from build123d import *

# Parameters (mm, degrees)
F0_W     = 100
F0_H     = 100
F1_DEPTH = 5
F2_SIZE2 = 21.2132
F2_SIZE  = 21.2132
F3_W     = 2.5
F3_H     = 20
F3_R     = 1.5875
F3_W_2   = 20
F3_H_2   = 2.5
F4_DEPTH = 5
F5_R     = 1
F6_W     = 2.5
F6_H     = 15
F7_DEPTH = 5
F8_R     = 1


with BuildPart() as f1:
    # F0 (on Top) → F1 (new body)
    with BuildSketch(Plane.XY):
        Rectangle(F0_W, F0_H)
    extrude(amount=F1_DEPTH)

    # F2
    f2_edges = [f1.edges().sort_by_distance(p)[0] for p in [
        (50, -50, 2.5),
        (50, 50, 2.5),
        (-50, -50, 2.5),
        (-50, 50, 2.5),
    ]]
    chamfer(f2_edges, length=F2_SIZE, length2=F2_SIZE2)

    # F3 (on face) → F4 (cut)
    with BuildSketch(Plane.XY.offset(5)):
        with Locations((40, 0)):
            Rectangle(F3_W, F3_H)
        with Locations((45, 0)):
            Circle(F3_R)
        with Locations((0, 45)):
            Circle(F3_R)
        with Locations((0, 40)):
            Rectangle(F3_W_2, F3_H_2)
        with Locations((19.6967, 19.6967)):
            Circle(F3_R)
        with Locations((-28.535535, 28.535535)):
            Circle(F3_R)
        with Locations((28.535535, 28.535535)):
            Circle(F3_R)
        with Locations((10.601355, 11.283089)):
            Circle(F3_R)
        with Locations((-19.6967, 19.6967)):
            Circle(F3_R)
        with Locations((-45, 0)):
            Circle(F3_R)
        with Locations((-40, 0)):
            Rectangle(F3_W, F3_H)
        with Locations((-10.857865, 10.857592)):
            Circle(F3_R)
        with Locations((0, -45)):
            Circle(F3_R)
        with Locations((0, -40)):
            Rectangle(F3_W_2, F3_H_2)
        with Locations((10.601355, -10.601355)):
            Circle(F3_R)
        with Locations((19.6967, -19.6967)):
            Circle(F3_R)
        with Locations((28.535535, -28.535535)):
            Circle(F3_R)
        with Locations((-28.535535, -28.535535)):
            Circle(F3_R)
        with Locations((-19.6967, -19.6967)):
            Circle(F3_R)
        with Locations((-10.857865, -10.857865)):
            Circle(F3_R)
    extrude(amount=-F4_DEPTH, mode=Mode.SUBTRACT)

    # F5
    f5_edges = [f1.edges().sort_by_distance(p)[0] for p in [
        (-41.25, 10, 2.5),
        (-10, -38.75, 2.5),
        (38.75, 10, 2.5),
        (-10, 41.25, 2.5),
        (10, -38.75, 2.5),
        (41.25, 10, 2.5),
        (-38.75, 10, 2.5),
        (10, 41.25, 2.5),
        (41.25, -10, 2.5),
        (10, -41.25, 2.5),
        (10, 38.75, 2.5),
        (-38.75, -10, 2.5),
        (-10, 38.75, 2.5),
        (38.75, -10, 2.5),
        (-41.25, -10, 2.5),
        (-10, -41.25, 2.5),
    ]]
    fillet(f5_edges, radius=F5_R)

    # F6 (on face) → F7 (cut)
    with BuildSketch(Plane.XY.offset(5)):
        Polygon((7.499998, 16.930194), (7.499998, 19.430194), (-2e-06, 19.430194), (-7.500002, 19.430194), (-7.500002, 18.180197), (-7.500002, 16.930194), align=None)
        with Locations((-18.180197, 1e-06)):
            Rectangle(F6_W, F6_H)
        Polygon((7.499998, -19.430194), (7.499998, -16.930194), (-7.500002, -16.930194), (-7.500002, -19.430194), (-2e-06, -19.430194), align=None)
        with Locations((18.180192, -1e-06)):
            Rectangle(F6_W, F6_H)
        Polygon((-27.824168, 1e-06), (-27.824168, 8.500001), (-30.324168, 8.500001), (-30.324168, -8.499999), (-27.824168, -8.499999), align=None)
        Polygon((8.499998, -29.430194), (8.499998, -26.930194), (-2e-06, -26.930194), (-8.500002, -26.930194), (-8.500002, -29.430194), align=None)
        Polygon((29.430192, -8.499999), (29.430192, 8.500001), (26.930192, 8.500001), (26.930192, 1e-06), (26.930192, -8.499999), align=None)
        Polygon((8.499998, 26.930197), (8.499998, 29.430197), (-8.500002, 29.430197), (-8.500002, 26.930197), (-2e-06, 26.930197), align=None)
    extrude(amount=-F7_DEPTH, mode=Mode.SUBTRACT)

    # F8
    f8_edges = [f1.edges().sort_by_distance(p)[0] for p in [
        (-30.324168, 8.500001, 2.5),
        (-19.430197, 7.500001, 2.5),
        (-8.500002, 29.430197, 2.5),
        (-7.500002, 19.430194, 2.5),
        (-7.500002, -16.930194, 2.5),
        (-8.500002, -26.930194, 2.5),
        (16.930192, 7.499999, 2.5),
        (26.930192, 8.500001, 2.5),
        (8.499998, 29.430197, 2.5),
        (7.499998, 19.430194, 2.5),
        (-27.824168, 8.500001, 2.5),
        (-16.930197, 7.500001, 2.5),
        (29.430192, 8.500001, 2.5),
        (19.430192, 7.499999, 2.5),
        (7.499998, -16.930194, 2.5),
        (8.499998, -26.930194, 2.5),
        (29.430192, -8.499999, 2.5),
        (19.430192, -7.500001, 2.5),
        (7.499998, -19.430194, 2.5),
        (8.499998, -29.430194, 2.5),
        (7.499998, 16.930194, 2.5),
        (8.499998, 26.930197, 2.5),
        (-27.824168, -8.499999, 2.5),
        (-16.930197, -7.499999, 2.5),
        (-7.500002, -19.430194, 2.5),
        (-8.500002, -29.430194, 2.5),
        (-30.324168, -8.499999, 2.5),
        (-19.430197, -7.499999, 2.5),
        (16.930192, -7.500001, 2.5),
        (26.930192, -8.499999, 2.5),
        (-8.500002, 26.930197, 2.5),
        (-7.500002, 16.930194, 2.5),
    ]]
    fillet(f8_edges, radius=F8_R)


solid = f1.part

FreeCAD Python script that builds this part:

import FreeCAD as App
import Part
import Sketcher

V = App.Vector


def edges_at(feature, points):
    """Names of the edges that pass closest to the given points."""
    edges = feature.Shape.Edges
    near = lambda p: min(range(len(edges)), key=lambda i: edges[i].distToShape(Part.Vertex(*p))[0])
    return sorted({f"Edge{near(p) + 1}" for p in points})


def add_polygon(sketch, points):
    """Adds a closed chain of lines whose ends are joined by coincident constraints."""
    first, n = sketch.GeometryCount, len(points)
    for a, b in zip(points, points[1:] + points[:1]):
        sketch.addGeometry(Part.LineSegment(App.Vector(*a, 0), App.Vector(*b, 0)), False)
    for i in range(n):
        sketch.addConstraint(Sketcher.Constraint("Coincident", first + i, 2, first + (i + 1) % n, 1))

doc = App.newDocument("Part")
params = doc.addObject("Spreadsheet::Sheet", "Params")
for row, (alias, value) in enumerate([
    ("sketch1_width", "100 mm"),
    ("pad1_length", "5 mm"),
    ("chamfer_size", "21.2132 mm"),
    ("chamfer_size2", "21.2132 mm"),
    ("sketch2_width", "20 mm"),
    ("sketch2_width2", "2.5 mm"),
    ("pocket1_length", "5 mm"),
    ("fillet_radius", "1 mm"),
    ("sketch3_width", "15 mm"),
    ("sketch3_width2", "17 mm"),
    ("sketch3_width3", "2.5 mm"),
    ("pocket2_length", "5 mm"),
    ("fillet2_radius", "1 mm"),
], start=1):
    params.set(f"A{row}", alias)
    params.set(f"B{row}", "=" + value)
    params.setAlias(f"B{row}", alias)

body = doc.addObject("PartDesign::Body", "Body")

# Sketch on XY plane
sketch1 = doc.addObject("Sketcher::SketchObject", "Sketch")
body.addObject(sketch1)
sketch1.AttachmentSupport = (doc.XY_Plane, [""])
sketch1.MapMode = "FlatFace"
add_polygon(sketch1, [(-50, 50), (-50, -50), (50, -50), (50, 50)])  # lines 0-3
sketch1.addConstraint(Sketcher.Constraint("Vertical", 0))
sketch1.addConstraint(Sketcher.Constraint("Horizontal", 1))
sketch1.addConstraint(Sketcher.Constraint("Vertical", 2))
sketch1.addConstraint(Sketcher.Constraint("Horizontal", 3))
sketch1.addConstraint(Sketcher.Constraint("Symmetric", 0, 2, 2, 2, -1, 1))
sketch1.addConstraint(Sketcher.Constraint("Equal", 3, 0))
sketch1.addConstraint(Sketcher.Constraint("DistanceX", 1, 1, 1, 2, 100.0))
sketch1.setExpression("Constraints[10]", "Params.sketch1_width")
pad1 = doc.addObject("PartDesign::Pad", "Pad")
body.addObject(pad1)
pad1.Profile = sketch1
pad1.setExpression("Length", "Params.pad1_length")
doc.recompute()

chamfer = doc.addObject("PartDesign::Chamfer", "Chamfer")
body.addObject(chamfer)
chamfer.Base = (pad1, edges_at(pad1, [
    (50, -50, 2.5),
    (50, 50, 2.5),
    (-50, -50, 2.5),
    (-50, 50, 2.5),
]))
chamfer.ChamferType = "Two distances"
chamfer.setExpression("Size", "Params.chamfer_size")
chamfer.setExpression("Size2", "Params.chamfer_size2")

# Sketch on XY plane
sketch2 = doc.addObject("Sketcher::SketchObject", "Sketch001")
body.addObject(sketch2)
sketch2.AttachmentSupport = (doc.XY_Plane, [""])
sketch2.MapMode = "FlatFace"
sketch2.AttachmentOffset = App.Placement(V(0, 0, 5), App.Rotation())
add_polygon(sketch2, [(38.8, 10), (38.8, -10), (41.2, -10), (41.2, 10)])  # lines 0-3
sketch2.addGeometry(Part.Circle(V(45, 0, 0), V(0, 0, 1), 1.6), False)  # 4
sketch2.addGeometry(Part.Circle(V(0, 45, 0), V(0, 0, 1), 1.6), False)  # 5
add_polygon(sketch2, [(-10, 41.2), (-10, 38.8), (10, 38.8), (10, 41.2)])  # lines 6-9
sketch2.addGeometry(Part.Circle(V(19.7, 19.7, 0), V(0, 0, 1), 1.6), False)  # 10
sketch2.addGeometry(Part.Circle(V(-28.5, 28.5, 0), V(0, 0, 1), 1.6), False)  # 11
sketch2.addGeometry(Part.Circle(V(28.5, 28.5, 0), V(0, 0, 1), 1.6), False)  # 12
sketch2.addGeometry(Part.Circle(V(10.6, 11.3, 0), V(0, 0, 1), 1.6), False)  # 13
sketch2.addGeometry(Part.Circle(V(-19.7, 19.7, 0), V(0, 0, 1), 1.6), False)  # 14
sketch2.addGeometry(Part.Circle(V(-45, 0, 0), V(0, 0, 1), 1.6), False)  # 15
add_polygon(sketch2, [(-41.2, 10), (-41.2, -10), (-38.8, -10), (-38.8, 10)])  # lines 16-19
sketch2.addGeometry(Part.Circle(V(-10.9, 10.9, 0), V(0, 0, 1), 1.6), False)  # 20
sketch2.addGeometry(Part.Circle(V(0, -45, 0), V(0, 0, 1), 1.6), False)  # 21
add_polygon(sketch2, [(-10, -38.8), (-10, -41.2), (10, -41.2), (10, -38.8)])  # lines 22-25
sketch2.addGeometry(Part.Circle(V(10.6, -10.6, 0), V(0, 0, 1), 1.6), False)  # 26
sketch2.addGeometry(Part.Circle(V(19.7, -19.7, 0), V(0, 0, 1), 1.6), False)  # 27
sketch2.addGeometry(Part.Circle(V(28.5, -28.5, 0), V(0, 0, 1), 1.6), False)  # 28
sketch2.addGeometry(Part.Circle(V(-28.5, -28.5, 0), V(0, 0, 1), 1.6), False)  # 29
sketch2.addGeometry(Part.Circle(V(-19.7, -19.7, 0), V(0, 0, 1), 1.6), False)  # 30
sketch2.addGeometry(Part.Circle(V(-10.9, -10.9, 0), V(0, 0, 1), 1.6), False)  # 31
sketch2.addConstraint(Sketcher.Constraint("Vertical", 0))
sketch2.addConstraint(Sketcher.Constraint("Horizontal", 1))
sketch2.addConstraint(Sketcher.Constraint("Vertical", 2))
sketch2.addConstraint(Sketcher.Constraint("Horizontal", 3))
sketch2.addConstraint(Sketcher.Constraint("Vertical", 6))
sketch2.addConstraint(Sketcher.Constraint("Horizontal", 7))
sketch2.addConstraint(Sketcher.Constraint("Vertical", 8))
sketch2.addConstraint(Sketcher.Constraint("Horizontal", 9))
sketch2.addConstraint(Sketcher.Constraint("Vertical", 16))
sketch2.addConstraint(Sketcher.Constraint("Horizontal", 17))
sketch2.addConstraint(Sketcher.Constraint("Vertical", 18))
sketch2.addConstraint(Sketcher.Constraint("Horizontal", 19))
sketch2.addConstraint(Sketcher.Constraint("Vertical", 22))
sketch2.addConstraint(Sketcher.Constraint("Horizontal", 23))
sketch2.addConstraint(Sketcher.Constraint("Vertical", 24))
sketch2.addConstraint(Sketcher.Constraint("Horizontal", 25))
sketch2.addConstraint(Sketcher.Constraint("Equal", 4, 5))
sketch2.addConstraint(Sketcher.Constraint("Equal", 5, 10))
sketch2.addConstraint(Sketcher.Constraint("Equal", 10, 11))
sketch2.addConstraint(Sketcher.Constraint("Equal", 11, 12))
sketch2.addConstraint(Sketcher.Constraint("Equal", 12, 13))
sketch2.addConstraint(Sketcher.Constraint("Equal", 13, 14))
sketch2.addConstraint(Sketcher.Constraint("Equal", 14, 15))
sketch2.addConstraint(Sketcher.Constraint("Equal", 15, 20))
sketch2.addConstraint(Sketcher.Constraint("Equal", 20, 21))
sketch2.addConstraint(Sketcher.Constraint("Equal", 21, 26))
sketch2.addConstraint(Sketcher.Constraint("Equal", 26, 27))
sketch2.addConstraint(Sketcher.Constraint("Equal", 27, 28))
sketch2.addConstraint(Sketcher.Constraint("Equal", 28, 29))
sketch2.addConstraint(Sketcher.Constraint("Equal", 29, 30))
sketch2.addConstraint(Sketcher.Constraint("Equal", 30, 31))
sketch2.addConstraint(Sketcher.Constraint("Symmetric", 4, 3, 15, 3, -1, 1))
sketch2.addConstraint(Sketcher.Constraint("Symmetric", 5, 3, 21, 3, -1, 1))
sketch2.addConstraint(Sketcher.Constraint("Symmetric", 14, 3, 27, 3, -1, 1))
sketch2.addConstraint(Sketcher.Constraint("Symmetric", 11, 3, 28, 3, -1, 1))
sketch2.addConstraint(Sketcher.Constraint("Symmetric", 12, 3, 29, 3, -1, 1))
sketch2.addConstraint(Sketcher.Constraint("Symmetric", 10, 3, 30, 3, -1, 1))
sketch2.addConstraint(Sketcher.Constraint("Symmetric", 2, 2, 16, 2, -1, 1))
sketch2.addConstraint(Sketcher.Constraint("Symmetric", 0, 2, 18, 2, -1, 1))
sketch2.addConstraint(Sketcher.Constraint("Symmetric", 8, 2, 22, 2, -1, 1))
sketch2.addConstraint(Sketcher.Constraint("Symmetric", 6, 2, 24, 2, -1, 1))
sketch2.addConstraint(Sketcher.Constraint("Symmetric", 11, 3, 12, 3, -2))
sketch2.addConstraint(Sketcher.Constraint("Symmetric", 10, 3, 14, 3, -2))
sketch2.addConstraint(Sketcher.Constraint("PointOnObject", 4, 3, -1))
sketch2.addConstraint(Sketcher.Constraint("PointOnObject", 5, 3, -2))
sketch2.addConstraint(Sketcher.Constraint("Horizontal", 1, 2, 16, 2))
sketch2.addConstraint(Sketcher.Constraint("Vertical", 13, 3, 26, 3))
sketch2.addConstraint(Sketcher.Constraint("Vertical", 20, 3, 31, 3))
sketch2.addConstraint(Sketcher.Constraint("Vertical", 9, 2, 22, 2))
sketch2.addConstraint(Sketcher.Constraint("Equal", 25, 0))
sketch2.addConstraint(Sketcher.Constraint("Equal", 19, 6))
sketch2.addConstraint(Sketcher.Constraint("DistanceX", 7, 1, 7, 2, 20.0))
sketch2.addConstraint(Sketcher.Constraint("Diameter", 4, 3.175))
sketch2.addConstraint(Sketcher.Constraint("DistanceX", 1, 1, 1, 2, 2.5))
sketch2.addConstraint(Sketcher.Constraint("DistanceX", -1, 1, 4, 3, 45.0))
sketch2.addConstraint(Sketcher.Constraint("DistanceY", -1, 1, 5, 3, 45.0))
sketch2.addConstraint(Sketcher.Constraint("DistanceX", -1, 1, 0, 2, 38.75))
sketch2.addConstraint(Sketcher.Constraint("DistanceY", -1, 1, 6, 2, 38.75))
sketch2.addConstraint(Sketcher.Constraint("DistanceX", -1, 1, 10, 3, 19.6967))
sketch2.addConstraint(Sketcher.Constraint("DistanceY", -1, 1, 10, 3, 19.6967))
sketch2.addConstraint(Sketcher.Constraint("DistanceY", -1, 1, 13, 3, 11.283089))
sketch2.addConstraint(Sketcher.Constraint("DistanceX", 11, 3, 12, 3, 57.07107))
sketch2.addConstraint(Sketcher.Constraint("DistanceX", 13, 3, 12, 3, 17.93418))
sketch2.addConstraint(Sketcher.Constraint("DistanceX", 20, 3, 13, 3, 21.45922))
sketch2.addConstraint(Sketcher.Constraint("DistanceY", 21, 3, 20, 3, 55.857592))
sketch2.addConstraint(Sketcher.Constraint("DistanceY", 28, 3, 26, 3, 17.93418))
sketch2.addConstraint(Sketcher.Constraint("DistanceY", 31, 3, 26, 3, 0.25651))
sketch2.addConstraint(Sketcher.Constraint("DistanceY", -1, 1, 11, 3, 28.535535))
sketch2.setExpression("Constraints[67]", "Params.sketch2_width")
sketch2.setExpression("Constraints[69]", "Params.sketch2_width2")
pocket1 = doc.addObject("PartDesign::Pocket", "Pocket")
body.addObject(pocket1)
pocket1.Profile = sketch2
pocket1.setExpression("Length", "Params.pocket1_length")
doc.recompute()

fillet = doc.addObject("PartDesign::Fillet", "Fillet")
body.addObject(fillet)
fillet.Base = (pocket1, edges_at(pocket1, [
    (-41.25, 10, 2.5),
    (-10, -38.75, 2.5),
    (38.75, 10, 2.5),
    (-10, 41.25, 2.5),
    (10, -38.75, 2.5),
    (41.25, 10, 2.5),
    (-38.75, 10, 2.5),
    (10, 41.25, 2.5),
    (41.25, -10, 2.5),
    (10, -41.25, 2.5),
    (10, 38.75, 2.5),
    (-38.75, -10, 2.5),
    (-10, 38.75, 2.5),
    (38.75, -10, 2.5),
    (-41.25, -10, 2.5),
    (-10, -41.25, 2.5),
]))
fillet.setExpression("Radius", "Params.fillet_radius")

# Sketch on XY plane
sketch3 = doc.addObject("Sketcher::SketchObject", "Sketch002")
body.addObject(sketch3)
sketch3.AttachmentSupport = (doc.XY_Plane, [""])
sketch3.MapMode = "FlatFace"
sketch3.AttachmentOffset = App.Placement(V(0, 0, 5), App.Rotation())
add_polygon(sketch3, [(7.5, 16.9), (7.5, 19.4), (-7.5, 19.4), (-7.5, 16.9)])  # lines 0-3
add_polygon(sketch3, [(-19.4, 7.5), (-19.4, -7.5), (-16.9, -7.5), (-16.9, 7.5)])  # lines 4-7
add_polygon(sketch3, [(7.5, -19.4), (7.5, -16.9), (-7.5, -16.9), (-7.5, -19.4)])  # lines 8-11
add_polygon(sketch3, [(16.9, 7.5), (16.9, -7.5), (19.4, -7.5), (19.4, 7.5)])  # lines 12-15
add_polygon(sketch3, [(-27.8, 8.5), (-30.3, 8.5), (-30.3, -8.5), (-27.8, -8.5)])  # lines 16-19
add_polygon(sketch3, [(8.5, -29.4), (8.5, -26.9), (-8.5, -26.9), (-8.5, -29.4)])  # lines 20-23
add_polygon(sketch3, [(29.4, -8.5), (29.4, 8.5), (26.9, 8.5), (26.9, -8.5)])  # lines 24-27
add_polygon(sketch3, [(8.5, 26.9), (8.5, 29.4), (-8.5, 29.4), (-8.5, 26.9)])  # lines 28-31
sketch3.addConstraint(Sketcher.Constraint("Vertical", 0))
sketch3.addConstraint(Sketcher.Constraint("Horizontal", 1))
sketch3.addConstraint(Sketcher.Constraint("Vertical", 2))
sketch3.addConstraint(Sketcher.Constraint("Horizontal", 3))
sketch3.addConstraint(Sketcher.Constraint("Vertical", 4))
sketch3.addConstraint(Sketcher.Constraint("Horizontal", 5))
sketch3.addConstraint(Sketcher.Constraint("Vertical", 6))
sketch3.addConstraint(Sketcher.Constraint("Horizontal", 7))
sketch3.addConstraint(Sketcher.Constraint("Vertical", 8))
sketch3.addConstraint(Sketcher.Constraint("Horizontal", 9))
sketch3.addConstraint(Sketcher.Constraint("Vertical", 10))
sketch3.addConstraint(Sketcher.Constraint("Horizontal", 11))
sketch3.addConstraint(Sketcher.Constraint("Vertical", 12))
sketch3.addConstraint(Sketcher.Constraint("Horizontal", 13))
sketch3.addConstraint(Sketcher.Constraint("Vertical", 14))
sketch3.addConstraint(Sketcher.Constraint("Horizontal", 15))
sketch3.addConstraint(Sketcher.Constraint("Horizontal", 16))
sketch3.addConstraint(Sketcher.Constraint("Vertical", 17))
sketch3.addConstraint(Sketcher.Constraint("Horizontal", 18))
sketch3.addConstraint(Sketcher.Constraint("Vertical", 19))
sketch3.addConstraint(Sketcher.Constraint("Vertical", 20))
sketch3.addConstraint(Sketcher.Constraint("Horizontal", 21))
sketch3.addConstraint(Sketcher.Constraint("Vertical", 22))
sketch3.addConstraint(Sketcher.Constraint("Horizontal", 23))
sketch3.addConstraint(Sketcher.Constraint("Vertical", 24))
sketch3.addConstraint(Sketcher.Constraint("Horizontal", 25))
sketch3.addConstraint(Sketcher.Constraint("Vertical", 26))
sketch3.addConstraint(Sketcher.Constraint("Horizontal", 27))
sketch3.addConstraint(Sketcher.Constraint("Vertical", 28))
sketch3.addConstraint(Sketcher.Constraint("Horizontal", 29))
sketch3.addConstraint(Sketcher.Constraint("Vertical", 30))
sketch3.addConstraint(Sketcher.Constraint("Horizontal", 31))
sketch3.addConstraint(Sketcher.Constraint("Symmetric", 2, 2, 8, 2, -1, 1))
sketch3.addConstraint(Sketcher.Constraint("Symmetric", 0, 2, 10, 2, -1, 1))
sketch3.addConstraint(Sketcher.Constraint("Symmetric", 6, 2, 12, 2, -1, 1))
sketch3.addConstraint(Sketcher.Constraint("Symmetric", 4, 2, 14, 2, -1, 1))
sketch3.addConstraint(Sketcher.Constraint("Symmetric", 22, 2, 28, 2, -1, 1))
sketch3.addConstraint(Sketcher.Constraint("Symmetric", 20, 2, 30, 2, -1, 1))
sketch3.addConstraint(Sketcher.Constraint("Horizontal", 19, 2, 24, 2))
sketch3.addConstraint(Sketcher.Constraint("Horizontal", 18, 2, 26, 2))
sketch3.addConstraint(Sketcher.Constraint("Vertical", 3, 2, 8, 2))
sketch3.addConstraint(Sketcher.Constraint("Vertical", 23, 2, 28, 2))
sketch3.addConstraint(Sketcher.Constraint("Equal", 15, 16))
sketch3.addConstraint(Sketcher.Constraint("Equal", 18, 25))
sketch3.addConstraint(Sketcher.Constraint("Equal", 27, 0))
sketch3.addConstraint(Sketcher.Constraint("Equal", 11, 4))
sketch3.addConstraint(Sketcher.Constraint("Equal", 31, 17))
sketch3.addConstraint(Sketcher.Constraint("Equal", 10, 20))
sketch3.addConstraint(Sketcher.Constraint("DistanceX", 1, 2, 1, 1, 15.0))
sketch3.addConstraint(Sketcher.Constraint("DistanceX", 21, 2, 21, 1, 17.0))
sketch3.addConstraint(Sketcher.Constraint("DistanceX", 5, 1, 5, 2, 2.5))
sketch3.addConstraint(Sketcher.Constraint("DistanceY", 7, 2, 16, 2, 1.0))
sketch3.addConstraint(Sketcher.Constraint("DistanceY", 20, 2, 8, 2, 10.0))
sketch3.addConstraint(Sketcher.Constraint("DistanceX", 14, 2, 24, 2, 10.0))
sketch3.addConstraint(Sketcher.Constraint("DistanceY", 14, 2, 24, 2, 1.000002))
sketch3.addConstraint(Sketcher.Constraint("DistanceY", 15, 2, 28, 2, 21.930198))
sketch3.addConstraint(Sketcher.Constraint("DistanceX", 16, 2, -1, 1, 30.324168))
sketch3.addConstraint(Sketcher.Constraint("DistanceX", 16, 2, 7, 2, 10.893971))
sketch3.setExpression("Constraints[80]", "Params.sketch3_width")
sketch3.setExpression("Constraints[81]", "Params.sketch3_width2")
sketch3.setExpression("Constraints[82]", "Params.sketch3_width3")
pocket2 = doc.addObject("PartDesign::Pocket", "Pocket001")
body.addObject(pocket2)
pocket2.Profile = sketch3
pocket2.setExpression("Length", "Params.pocket2_length")
doc.recompute()

fillet2 = doc.addObject("PartDesign::Fillet", "Fillet001")
body.addObject(fillet2)
fillet2.Base = (pocket2, edges_at(pocket2, [
    (-30.324, 8.5, 2.5),
    (-19.43, 7.5, 2.5),
    (-8.5, 29.43, 2.5),
    (-7.5, 19.43, 2.5),
    (-7.5, -16.93, 2.5),
    (-8.5, -26.93, 2.5),
    (16.93, 7.5, 2.5),
    (26.93, 8.5, 2.5),
    (8.5, 29.43, 2.5),
    (7.5, 19.43, 2.5),
    (-27.824, 8.5, 2.5),
    (-16.93, 7.5, 2.5),
    (29.43, 8.5, 2.5),
    (19.43, 7.5, 2.5),
    (7.5, -16.93, 2.5),
    (8.5, -26.93, 2.5),
    (29.43, -8.5, 2.5),
    (19.43, -7.5, 2.5),
    (7.5, -19.43, 2.5),
    (8.5, -29.43, 2.5),
    (7.5, 16.93, 2.5),
    (8.5, 26.93, 2.5),
    (-27.824, -8.5, 2.5),
    (-16.93, -7.5, 2.5),
    (-7.5, -19.43, 2.5),
    (-8.5, -29.43, 2.5),
    (-30.324, -8.5, 2.5),
    (-19.43, -7.5, 2.5),
    (16.93, -7.5, 2.5),
    (26.93, -8.5, 2.5),
    (-8.5, 26.93, 2.5),
    (-7.5, 16.93, 2.5),
]))
fillet2.setExpression("Radius", "Params.fillet2_radius")

doc.recompute()
